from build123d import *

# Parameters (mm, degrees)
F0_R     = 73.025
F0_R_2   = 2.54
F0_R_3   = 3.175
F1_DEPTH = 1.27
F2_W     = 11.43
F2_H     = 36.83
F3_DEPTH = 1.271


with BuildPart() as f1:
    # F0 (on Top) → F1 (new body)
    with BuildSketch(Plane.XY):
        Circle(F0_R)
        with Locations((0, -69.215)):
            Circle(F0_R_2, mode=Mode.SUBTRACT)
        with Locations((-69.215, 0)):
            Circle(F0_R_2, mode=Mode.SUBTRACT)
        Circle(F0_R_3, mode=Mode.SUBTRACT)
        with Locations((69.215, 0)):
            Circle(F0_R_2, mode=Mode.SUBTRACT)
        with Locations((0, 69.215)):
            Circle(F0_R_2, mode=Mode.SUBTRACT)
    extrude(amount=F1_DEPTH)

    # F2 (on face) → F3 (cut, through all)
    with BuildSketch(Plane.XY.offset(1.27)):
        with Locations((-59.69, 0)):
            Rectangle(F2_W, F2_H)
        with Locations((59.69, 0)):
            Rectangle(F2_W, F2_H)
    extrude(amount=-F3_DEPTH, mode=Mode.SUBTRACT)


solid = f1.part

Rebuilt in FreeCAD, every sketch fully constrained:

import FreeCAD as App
import Part
import Sketcher

V = App.Vector
Q = App.Units.Quantity


def add_polygon(sketch, points):
    """Adds a closed chain of lines whose ends are joined by coincident constraints."""
    first, n = sketch.GeometryCount, len(points)
    for a, b in zip(points, points[1:] + points[:1]):
        sketch.addGeometry(Part.LineSegment(App.Vector(*a, 0), App.Vector(*b, 0)), False)
    for i in range(n):
        sketch.addConstraint(Sketcher.Constraint("Coincident", first + i, 2, first + (i + 1) % n, 1))

doc = App.newDocument("Part")
body = doc.addObject("PartDesign::Body", "Body")

# Sketch on XY plane
sketch1 = body.newObject("Sketcher::SketchObject", "Sketch")
sketch1.AttachmentSupport = (doc.getObject("XY_Plane"), [""])
sketch1.MapMode = "FlatFace"
sketch1.addGeometry(Part.Circle(V(0, 0, 0), V(0, 0, 1), 73.025), False)
sketch1.addGeometry(Part.Circle(V(0, -69.215, 0), V(0, 0, 1), 2.54), False)
sketch1.addGeometry(Part.Circle(V(-69.215, 0, 0), V(0, 0, 1), 2.54), False)
sketch1.addGeometry(Part.Circle(V(0, 0, 0), V(0, 0, 1), 3.175), False)
sketch1.addGeometry(Part.Circle(V(69.215, 0, 0), V(0, 0, 1), 2.54), False)
sketch1.addGeometry(Part.Circle(V(0, 69.215, 0), V(0, 0, 1), 2.54), False)
sketch1.addConstraint(Sketcher.Constraint("Coincident", 0, 3, -1, 1))
sketch1.addConstraint(Sketcher.Constraint("Coincident", 3, 3, -1, 1))
sketch1.addConstraint(Sketcher.Constraint("Equal", 1, 2))
sketch1.addConstraint(Sketcher.Constraint("Equal", 2, 4))
sketch1.addConstraint(Sketcher.Constraint("Equal", 4, 5))
sketch1.addConstraint(Sketcher.Constraint("Symmetric", 2, 3, 4, 3, -1, 1))
sketch1.addConstraint(Sketcher.Constraint("Symmetric", 1, 3, 5, 3, -1, 1))
sketch1.addConstraint(Sketcher.Constraint("PointOnObject", 1, 3, -2))
sketch1.addConstraint(Sketcher.Constraint("PointOnObject", 2, 3, -1))
sketch1.addConstraint(Sketcher.Constraint("Diameter", 1, Q("0.2 in")))
sketch1.addConstraint(Sketcher.Constraint("Diameter", 0, Q("5.75 in")))
sketch1.addConstraint(Sketcher.Constraint("Diameter", 3, Q("0.25 in")))
sketch1.addConstraint(Sketcher.Constraint("DistanceX", 2, 3, 4, 3, Q("5.45 in")))
sketch1.addConstraint(Sketcher.Constraint("DistanceY", 1, 3, 5, 3, Q("5.45 in")))
pad1 = body.newObject("PartDesign::Pad", "Pad")
pad1.Profile = sketch1
pad1.Length = Q("0.05 in")

# Sketch on XY plane
sketch2 = body.newObject("Sketcher::SketchObject", "Sketch001")
sketch2.AttachmentSupport = (doc.getObject("XY_Plane"), [""])
sketch2.MapMode = "FlatFace"
sketch2.AttachmentOffset = App.Placement(V(0, 0, 0.05 * 25.4), App.Rotation())
add_polygon(sketch2, [(-65.405, 18.415), (-65.405, -18.415), (-53.975, -18.415), (-53.975, 18.415)])  # lines 0-3
add_polygon(sketch2, [(53.975, 18.415), (53.975, -18.415), (65.405, -18.415), (65.405, 18.415)])  # lines 4-7
sketch2.addConstraint(Sketcher.Constraint("Vertical", 0))
sketch2.addConstraint(Sketcher.Constraint("Horizontal", 1))
sketch2.addConstraint(Sketcher.Constraint("Vertical", 2))
sketch2.addConstraint(Sketcher.Constraint("Horizontal", 3))
sketch2.addConstraint(Sketcher.Constraint("Vertical", 4))
sketch2.addConstraint(Sketcher.Constraint("Horizontal", 5))
sketch2.addConstraint(Sketcher.Constraint("Vertical", 6))
sketch2.addConstraint(Sketcher.Constraint("Horizontal", 7))
sketch2.addConstraint(Sketcher.Constraint("Symmetric", 2, 2, 4, 2, -1, 1))
sketch2.addConstraint(Sketcher.Constraint("Symmetric", 0, 2, 6, 2, -1, 1))
sketch2.addConstraint(Sketcher.Constraint("Horizontal", 1, 2, 4, 2))
sketch2.addConstraint(Sketcher.Constraint("DistanceX", 1, 1, 1, 2, Q("0.45 in")))
sketch2.addConstraint(Sketcher.Constraint("DistanceY", 0, 2, 0, 1, Q("1.45 in")))
sketch2.addConstraint(Sketcher.Constraint("DistanceX", 0, 2, 4, 2, Q("4.7 in")))
pocket1 = body.newObject("PartDesign::Pocket", "Pocket")
pocket1.Profile = sketch2
pocket1.Type = "ThroughAll"

doc.recompute()
